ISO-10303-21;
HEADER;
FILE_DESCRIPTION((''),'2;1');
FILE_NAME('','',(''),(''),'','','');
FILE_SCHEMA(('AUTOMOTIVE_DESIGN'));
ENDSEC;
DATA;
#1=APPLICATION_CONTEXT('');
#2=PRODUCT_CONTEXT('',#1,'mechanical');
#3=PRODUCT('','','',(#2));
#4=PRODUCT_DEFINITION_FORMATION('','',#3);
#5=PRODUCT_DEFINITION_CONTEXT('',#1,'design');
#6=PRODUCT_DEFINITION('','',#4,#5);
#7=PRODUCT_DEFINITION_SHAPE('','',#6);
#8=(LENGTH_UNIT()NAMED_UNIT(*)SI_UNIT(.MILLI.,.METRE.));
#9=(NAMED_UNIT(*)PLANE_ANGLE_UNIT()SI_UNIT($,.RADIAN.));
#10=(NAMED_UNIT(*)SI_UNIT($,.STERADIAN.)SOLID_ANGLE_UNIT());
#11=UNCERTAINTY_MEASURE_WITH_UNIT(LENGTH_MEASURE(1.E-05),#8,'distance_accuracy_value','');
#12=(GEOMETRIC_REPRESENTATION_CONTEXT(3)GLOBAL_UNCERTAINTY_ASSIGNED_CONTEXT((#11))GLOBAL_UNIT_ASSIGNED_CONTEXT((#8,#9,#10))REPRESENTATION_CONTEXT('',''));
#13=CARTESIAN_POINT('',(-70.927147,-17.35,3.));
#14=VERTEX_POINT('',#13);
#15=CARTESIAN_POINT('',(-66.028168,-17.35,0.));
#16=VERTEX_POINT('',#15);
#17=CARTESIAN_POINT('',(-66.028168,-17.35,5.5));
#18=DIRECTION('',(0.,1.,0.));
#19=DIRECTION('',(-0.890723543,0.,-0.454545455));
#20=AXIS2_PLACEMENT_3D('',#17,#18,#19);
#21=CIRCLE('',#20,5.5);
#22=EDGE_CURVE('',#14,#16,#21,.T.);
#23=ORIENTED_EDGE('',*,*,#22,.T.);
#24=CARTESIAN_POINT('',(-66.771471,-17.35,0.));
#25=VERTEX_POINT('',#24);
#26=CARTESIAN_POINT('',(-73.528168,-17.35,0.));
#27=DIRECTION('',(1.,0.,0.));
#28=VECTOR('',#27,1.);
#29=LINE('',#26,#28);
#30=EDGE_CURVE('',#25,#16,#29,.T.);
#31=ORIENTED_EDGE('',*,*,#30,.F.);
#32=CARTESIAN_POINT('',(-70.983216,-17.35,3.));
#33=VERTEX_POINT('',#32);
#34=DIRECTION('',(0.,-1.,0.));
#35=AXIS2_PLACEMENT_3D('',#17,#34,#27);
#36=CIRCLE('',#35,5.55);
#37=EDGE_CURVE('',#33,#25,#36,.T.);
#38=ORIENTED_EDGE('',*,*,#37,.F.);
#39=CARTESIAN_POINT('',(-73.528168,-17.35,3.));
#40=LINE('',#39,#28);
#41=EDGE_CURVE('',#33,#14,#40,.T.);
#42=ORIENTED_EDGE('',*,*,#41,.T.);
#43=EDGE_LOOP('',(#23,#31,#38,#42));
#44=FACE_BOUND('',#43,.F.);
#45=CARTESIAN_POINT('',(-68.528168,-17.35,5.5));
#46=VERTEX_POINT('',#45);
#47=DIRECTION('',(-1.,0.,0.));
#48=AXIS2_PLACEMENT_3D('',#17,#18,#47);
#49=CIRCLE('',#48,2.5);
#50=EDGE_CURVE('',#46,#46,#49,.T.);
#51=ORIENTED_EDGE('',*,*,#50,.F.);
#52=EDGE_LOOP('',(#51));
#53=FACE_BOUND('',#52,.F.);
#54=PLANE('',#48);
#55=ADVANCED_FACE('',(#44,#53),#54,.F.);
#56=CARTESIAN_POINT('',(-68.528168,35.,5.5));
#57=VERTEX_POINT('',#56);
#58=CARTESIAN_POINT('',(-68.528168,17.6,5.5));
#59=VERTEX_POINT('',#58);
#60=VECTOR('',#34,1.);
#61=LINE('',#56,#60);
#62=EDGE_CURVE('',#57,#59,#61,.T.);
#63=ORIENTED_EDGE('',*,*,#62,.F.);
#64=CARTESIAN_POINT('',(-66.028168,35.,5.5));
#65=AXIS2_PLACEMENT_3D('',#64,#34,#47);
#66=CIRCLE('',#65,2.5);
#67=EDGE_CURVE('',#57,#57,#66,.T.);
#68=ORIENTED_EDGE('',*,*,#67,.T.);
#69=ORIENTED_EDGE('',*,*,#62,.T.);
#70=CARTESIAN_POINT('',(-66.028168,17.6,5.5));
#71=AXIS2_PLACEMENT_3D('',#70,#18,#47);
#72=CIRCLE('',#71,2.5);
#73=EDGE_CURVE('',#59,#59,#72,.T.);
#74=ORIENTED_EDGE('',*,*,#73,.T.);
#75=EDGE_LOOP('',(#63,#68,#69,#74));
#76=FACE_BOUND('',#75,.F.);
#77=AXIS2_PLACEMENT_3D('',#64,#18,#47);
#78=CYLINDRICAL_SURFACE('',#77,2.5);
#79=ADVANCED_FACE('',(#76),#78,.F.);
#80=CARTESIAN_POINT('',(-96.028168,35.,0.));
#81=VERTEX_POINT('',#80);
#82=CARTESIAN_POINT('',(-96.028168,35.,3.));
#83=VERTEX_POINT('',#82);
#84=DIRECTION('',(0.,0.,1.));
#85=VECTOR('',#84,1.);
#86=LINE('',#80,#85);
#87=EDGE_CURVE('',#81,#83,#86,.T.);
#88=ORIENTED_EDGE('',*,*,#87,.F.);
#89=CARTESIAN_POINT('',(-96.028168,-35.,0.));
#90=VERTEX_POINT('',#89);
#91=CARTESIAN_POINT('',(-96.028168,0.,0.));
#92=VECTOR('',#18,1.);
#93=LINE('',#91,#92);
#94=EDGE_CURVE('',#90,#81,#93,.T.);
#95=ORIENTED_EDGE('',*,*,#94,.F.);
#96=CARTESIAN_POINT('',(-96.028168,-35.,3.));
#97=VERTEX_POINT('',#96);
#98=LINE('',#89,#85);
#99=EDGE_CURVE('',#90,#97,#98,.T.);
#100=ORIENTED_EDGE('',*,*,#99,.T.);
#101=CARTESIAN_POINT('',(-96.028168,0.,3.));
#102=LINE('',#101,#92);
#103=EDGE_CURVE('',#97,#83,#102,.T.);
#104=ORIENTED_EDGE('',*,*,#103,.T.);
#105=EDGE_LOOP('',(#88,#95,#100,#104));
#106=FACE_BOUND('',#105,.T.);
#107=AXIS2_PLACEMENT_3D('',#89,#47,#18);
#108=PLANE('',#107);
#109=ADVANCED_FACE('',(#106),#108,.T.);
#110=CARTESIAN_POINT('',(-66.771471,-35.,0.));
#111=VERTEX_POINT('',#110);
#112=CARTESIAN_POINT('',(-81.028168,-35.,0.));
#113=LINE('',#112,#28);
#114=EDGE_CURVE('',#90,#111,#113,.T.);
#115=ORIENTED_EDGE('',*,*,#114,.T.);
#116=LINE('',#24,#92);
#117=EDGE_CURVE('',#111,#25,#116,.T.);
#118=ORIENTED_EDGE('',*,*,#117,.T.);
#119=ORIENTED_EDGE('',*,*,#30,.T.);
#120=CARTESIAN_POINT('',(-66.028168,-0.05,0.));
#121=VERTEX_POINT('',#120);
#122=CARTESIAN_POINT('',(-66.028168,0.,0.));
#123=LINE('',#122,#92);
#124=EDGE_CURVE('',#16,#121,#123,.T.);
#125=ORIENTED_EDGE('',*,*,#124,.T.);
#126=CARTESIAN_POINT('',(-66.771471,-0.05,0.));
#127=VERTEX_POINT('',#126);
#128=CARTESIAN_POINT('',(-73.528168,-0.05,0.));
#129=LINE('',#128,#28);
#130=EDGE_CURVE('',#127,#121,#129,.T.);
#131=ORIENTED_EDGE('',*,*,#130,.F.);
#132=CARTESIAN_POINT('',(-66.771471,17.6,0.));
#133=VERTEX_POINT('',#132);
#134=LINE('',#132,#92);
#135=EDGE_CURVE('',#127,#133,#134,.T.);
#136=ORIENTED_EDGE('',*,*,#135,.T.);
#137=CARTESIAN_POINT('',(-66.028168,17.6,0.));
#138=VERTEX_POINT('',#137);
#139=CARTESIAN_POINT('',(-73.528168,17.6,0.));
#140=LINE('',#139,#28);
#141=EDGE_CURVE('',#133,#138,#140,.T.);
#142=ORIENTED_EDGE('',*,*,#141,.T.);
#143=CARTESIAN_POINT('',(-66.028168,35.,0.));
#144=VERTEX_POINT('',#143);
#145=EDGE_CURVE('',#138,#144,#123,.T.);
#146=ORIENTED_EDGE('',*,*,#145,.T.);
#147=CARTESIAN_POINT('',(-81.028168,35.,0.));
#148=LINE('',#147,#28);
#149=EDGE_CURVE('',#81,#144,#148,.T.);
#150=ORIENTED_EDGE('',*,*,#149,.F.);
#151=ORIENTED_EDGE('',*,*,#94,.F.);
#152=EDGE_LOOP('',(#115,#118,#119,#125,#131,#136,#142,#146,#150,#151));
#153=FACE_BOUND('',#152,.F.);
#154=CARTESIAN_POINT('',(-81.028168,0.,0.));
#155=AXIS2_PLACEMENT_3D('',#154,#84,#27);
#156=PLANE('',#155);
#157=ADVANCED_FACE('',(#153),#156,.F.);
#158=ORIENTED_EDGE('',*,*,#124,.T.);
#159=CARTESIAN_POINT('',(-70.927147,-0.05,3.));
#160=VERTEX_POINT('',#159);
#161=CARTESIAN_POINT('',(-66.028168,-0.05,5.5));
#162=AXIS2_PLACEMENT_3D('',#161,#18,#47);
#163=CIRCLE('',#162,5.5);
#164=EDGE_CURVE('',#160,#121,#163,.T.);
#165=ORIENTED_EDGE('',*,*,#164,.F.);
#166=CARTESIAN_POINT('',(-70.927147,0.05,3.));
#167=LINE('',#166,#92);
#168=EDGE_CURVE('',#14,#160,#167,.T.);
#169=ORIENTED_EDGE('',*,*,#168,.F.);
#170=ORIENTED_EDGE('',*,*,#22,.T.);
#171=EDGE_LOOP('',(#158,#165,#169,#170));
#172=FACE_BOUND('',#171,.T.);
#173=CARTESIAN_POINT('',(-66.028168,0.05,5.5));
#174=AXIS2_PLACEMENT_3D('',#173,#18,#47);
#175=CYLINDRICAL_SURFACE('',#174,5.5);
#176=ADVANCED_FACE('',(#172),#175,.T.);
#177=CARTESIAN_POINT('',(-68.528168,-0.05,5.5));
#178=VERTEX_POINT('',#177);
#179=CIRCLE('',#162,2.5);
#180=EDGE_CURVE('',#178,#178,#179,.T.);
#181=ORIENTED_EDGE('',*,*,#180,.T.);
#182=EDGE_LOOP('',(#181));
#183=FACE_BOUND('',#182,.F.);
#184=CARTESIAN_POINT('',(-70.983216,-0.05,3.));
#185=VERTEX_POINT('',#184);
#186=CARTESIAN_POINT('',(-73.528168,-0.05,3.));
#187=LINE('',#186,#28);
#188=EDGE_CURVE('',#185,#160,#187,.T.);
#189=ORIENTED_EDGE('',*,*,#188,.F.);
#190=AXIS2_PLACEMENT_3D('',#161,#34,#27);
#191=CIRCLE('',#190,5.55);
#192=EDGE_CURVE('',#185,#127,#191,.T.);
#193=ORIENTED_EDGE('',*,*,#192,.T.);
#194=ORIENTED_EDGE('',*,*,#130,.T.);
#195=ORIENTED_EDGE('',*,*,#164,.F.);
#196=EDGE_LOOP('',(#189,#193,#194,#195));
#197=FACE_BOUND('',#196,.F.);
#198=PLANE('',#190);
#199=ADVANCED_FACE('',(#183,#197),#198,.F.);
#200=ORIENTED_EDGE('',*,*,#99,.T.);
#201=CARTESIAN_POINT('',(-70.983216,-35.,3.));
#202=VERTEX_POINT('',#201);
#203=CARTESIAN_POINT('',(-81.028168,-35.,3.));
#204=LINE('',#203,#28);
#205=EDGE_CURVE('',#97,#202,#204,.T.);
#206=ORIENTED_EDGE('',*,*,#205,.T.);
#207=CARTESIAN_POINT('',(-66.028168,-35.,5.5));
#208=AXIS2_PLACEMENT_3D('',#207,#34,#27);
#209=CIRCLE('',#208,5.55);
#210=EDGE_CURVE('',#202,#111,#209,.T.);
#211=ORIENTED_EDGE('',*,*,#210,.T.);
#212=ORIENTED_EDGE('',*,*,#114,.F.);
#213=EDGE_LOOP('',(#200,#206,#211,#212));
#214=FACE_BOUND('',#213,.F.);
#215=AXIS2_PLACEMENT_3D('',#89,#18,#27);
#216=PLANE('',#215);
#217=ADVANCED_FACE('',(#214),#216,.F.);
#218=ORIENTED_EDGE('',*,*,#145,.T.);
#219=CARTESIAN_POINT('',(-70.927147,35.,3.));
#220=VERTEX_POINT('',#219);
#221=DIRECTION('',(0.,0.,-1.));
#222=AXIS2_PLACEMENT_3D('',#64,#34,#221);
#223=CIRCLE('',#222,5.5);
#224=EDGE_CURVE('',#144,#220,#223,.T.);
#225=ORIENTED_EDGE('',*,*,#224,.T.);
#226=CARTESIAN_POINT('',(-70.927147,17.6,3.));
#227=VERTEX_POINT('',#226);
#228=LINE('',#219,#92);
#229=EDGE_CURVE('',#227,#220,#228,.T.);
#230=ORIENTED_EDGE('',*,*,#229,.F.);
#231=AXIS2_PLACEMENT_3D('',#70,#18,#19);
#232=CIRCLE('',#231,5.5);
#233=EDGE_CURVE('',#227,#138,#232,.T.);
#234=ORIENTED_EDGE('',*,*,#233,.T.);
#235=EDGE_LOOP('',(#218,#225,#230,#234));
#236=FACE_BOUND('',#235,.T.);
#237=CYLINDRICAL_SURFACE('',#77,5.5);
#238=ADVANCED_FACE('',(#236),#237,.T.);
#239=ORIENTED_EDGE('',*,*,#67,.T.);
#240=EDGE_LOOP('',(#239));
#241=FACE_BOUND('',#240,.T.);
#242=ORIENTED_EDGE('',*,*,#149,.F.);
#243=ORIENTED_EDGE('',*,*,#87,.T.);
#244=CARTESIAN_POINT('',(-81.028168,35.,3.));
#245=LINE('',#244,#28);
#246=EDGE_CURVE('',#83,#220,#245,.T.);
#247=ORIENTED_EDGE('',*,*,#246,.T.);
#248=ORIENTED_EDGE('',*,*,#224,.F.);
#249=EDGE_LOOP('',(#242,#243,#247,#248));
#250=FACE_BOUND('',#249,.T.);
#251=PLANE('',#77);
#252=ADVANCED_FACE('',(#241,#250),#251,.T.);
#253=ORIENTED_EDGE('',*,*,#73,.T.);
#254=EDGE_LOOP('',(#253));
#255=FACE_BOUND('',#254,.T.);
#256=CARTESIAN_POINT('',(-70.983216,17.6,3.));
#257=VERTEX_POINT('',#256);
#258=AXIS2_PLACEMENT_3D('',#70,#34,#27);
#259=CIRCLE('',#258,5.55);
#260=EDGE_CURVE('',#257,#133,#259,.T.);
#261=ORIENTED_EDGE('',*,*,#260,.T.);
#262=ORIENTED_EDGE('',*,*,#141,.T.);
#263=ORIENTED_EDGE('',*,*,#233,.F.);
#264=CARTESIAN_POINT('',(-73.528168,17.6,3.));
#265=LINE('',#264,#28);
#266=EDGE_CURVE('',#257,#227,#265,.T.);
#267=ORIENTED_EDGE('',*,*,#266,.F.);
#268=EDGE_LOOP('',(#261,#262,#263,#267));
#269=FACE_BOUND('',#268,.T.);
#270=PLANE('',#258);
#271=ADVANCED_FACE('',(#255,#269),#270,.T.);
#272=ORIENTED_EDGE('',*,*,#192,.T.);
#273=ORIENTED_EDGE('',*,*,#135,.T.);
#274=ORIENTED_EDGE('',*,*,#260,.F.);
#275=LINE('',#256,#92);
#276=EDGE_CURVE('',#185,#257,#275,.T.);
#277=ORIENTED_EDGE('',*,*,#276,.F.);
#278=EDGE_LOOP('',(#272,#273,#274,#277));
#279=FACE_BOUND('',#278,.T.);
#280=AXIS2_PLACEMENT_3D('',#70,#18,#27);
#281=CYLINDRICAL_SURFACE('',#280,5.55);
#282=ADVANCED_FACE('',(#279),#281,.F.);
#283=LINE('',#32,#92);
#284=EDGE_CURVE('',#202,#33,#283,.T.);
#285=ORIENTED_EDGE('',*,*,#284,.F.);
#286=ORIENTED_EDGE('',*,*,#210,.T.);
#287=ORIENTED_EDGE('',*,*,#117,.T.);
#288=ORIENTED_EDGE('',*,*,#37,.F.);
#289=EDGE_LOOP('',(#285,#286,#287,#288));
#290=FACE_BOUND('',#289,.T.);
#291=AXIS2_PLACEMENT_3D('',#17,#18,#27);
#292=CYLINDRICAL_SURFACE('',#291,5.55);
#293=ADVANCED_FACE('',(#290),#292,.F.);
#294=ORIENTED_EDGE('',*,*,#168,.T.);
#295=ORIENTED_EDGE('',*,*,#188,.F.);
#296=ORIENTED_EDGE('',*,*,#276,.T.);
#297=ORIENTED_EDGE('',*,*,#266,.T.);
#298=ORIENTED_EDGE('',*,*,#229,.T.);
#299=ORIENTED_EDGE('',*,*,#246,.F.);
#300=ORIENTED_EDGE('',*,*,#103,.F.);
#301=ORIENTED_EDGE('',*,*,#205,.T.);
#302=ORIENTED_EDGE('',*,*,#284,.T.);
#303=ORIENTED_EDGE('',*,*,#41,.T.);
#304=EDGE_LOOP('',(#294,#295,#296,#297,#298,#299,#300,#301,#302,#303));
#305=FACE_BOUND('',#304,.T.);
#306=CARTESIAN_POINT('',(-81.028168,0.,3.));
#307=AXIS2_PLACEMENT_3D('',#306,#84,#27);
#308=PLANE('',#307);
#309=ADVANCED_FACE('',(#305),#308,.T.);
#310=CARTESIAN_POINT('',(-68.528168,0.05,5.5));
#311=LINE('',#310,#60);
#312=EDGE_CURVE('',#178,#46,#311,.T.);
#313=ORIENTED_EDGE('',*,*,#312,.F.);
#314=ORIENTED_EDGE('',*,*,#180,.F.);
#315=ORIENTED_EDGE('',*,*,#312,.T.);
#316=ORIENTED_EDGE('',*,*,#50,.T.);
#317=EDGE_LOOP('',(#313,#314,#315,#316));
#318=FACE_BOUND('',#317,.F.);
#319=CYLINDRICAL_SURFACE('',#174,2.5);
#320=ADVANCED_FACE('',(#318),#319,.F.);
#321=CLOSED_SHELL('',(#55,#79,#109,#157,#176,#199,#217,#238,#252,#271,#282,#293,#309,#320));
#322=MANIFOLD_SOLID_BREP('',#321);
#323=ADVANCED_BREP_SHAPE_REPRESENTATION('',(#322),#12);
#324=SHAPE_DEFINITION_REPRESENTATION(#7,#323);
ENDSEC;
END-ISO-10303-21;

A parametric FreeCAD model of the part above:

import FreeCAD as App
import Part
import Sketcher

V = App.Vector

doc = App.newDocument("Part")
body = doc.addObject("PartDesign::Body", "Body")

sketch1 = body.newObject("Sketcher::SketchObject", "Sketch")
sketch1.AttachmentSupport = (doc.getObject("XY_Plane"), [""])
sketch1.MapMode = "FlatFace"
sketch1.addGeometry(Part.LineSegment(V(-96, 35, 0), V(-96, -35, 0)), False)
sketch1.addGeometry(Part.LineSegment(V(-96, -35, 0), V(-66, -35, 0)), False)
sketch1.addGeometry(Part.LineSegment(V(-66, -35, 0), V(-66, 35, 0)), False)
sketch1.addGeometry(Part.LineSegment(V(-66, 35, 0), V(-96, 35, 0)), False)
sketch1.addConstraint(Sketcher.Constraint("Coincident", 0, 2, 1, 1))
sketch1.addConstraint(Sketcher.Constraint("Coincident", 1, 2, 2, 1))
sketch1.addConstraint(Sketcher.Constraint("Coincident", 2, 2, 3, 1))
sketch1.addConstraint(Sketcher.Constraint("Coincident", 3, 2, 0, 1))
sketch1.addConstraint(Sketcher.Constraint("Vertical", 0))
sketch1.addConstraint(Sketcher.Constraint("Horizontal", 1))
sketch1.addConstraint(Sketcher.Constraint("Vertical", 2))
sketch1.addConstraint(Sketcher.Constraint("Horizontal", 3))
sketch1.addConstraint(Sketcher.Constraint("DistanceX", 1, 1, 1, 2, 30.0))
sketch1.addConstraint(Sketcher.Constraint("DistanceY", 0, 2, 0, 1, 70.0))
sketch1.addConstraint(Sketcher.Constraint("DistanceY", 0, 2, -1, 1, 35.0))
sketch1.addConstraint(Sketcher.Constraint("DistanceX", 0, 2, -1, 1, 96.028168))
pad1 = body.newObject("PartDesign::Pad", "Pad")
pad1.Profile = sketch1
pad1.Length = 3

sketch2 = body.newObject("Sketcher::SketchObject", "Sketch001")
sketch2.AttachmentSupport = (doc.getObject("XZ_Plane"), [""])
sketch2.MapMode = "FlatFace"
sketch2.AttachmentOffset = App.Placement(V(0, 0, -35), App.Rotation())
sketch2.addGeometry(Part.Circle(V(-66, 5.5, 0), V(0, 0, 1), 5.5), False)
sketch2.addGeometry(Part.Circle(V(-66, 5.5, 0), V(0, 0, 1), 2.5), False)
sketch2.addConstraint(Sketcher.Constraint("Coincident", 1, 3, 0, 3))
sketch2.addConstraint(Sketcher.Constraint("Diameter", 0, 11.0))
sketch2.addConstraint(Sketcher.Constraint("Diameter", 1, 5.0))
sketch2.addConstraint(Sketcher.Constraint("DistanceY", -1, 1, 0, 3, 5.5))
sketch2.addConstraint(Sketcher.Constraint("DistanceX", 0, 3, -1, 1, 66.028168))
pad2 = body.newObject("PartDesign::Pad", "Pad001")
pad2.Profile = sketch2
pad2.Length = 17.4
doc.recompute()

linearpattern = body.newObject("PartDesign::LinearPattern", "LinearPattern")
linearpattern.Originals = [pad2]
linearpattern.Direction = (doc.getObject("Y_Axis"), [""])
linearpattern.Mode = "offset"
linearpattern.Offset = 34.95
linearpattern.Occurrences = 2
linearpattern.Reversed = True
body.Tip = linearpattern

sketch3 = body.newObject("Sketcher::SketchObject", "Sketch002")
sketch3.AttachmentSupport = (doc.getObject("XZ_Plane"), [""])
sketch3.MapMode = "FlatFace"
sketch3.AttachmentOffset = App.Placement(V(0, 0, -17.6), App.Rotation())
sketch3.addGeometry(Part.Circle(V(-66, 6, 0), V(0, 0, 1), 6), False)
sketch3.addConstraint(Sketcher.Constraint("Diameter", 0, 11.1))
sketch3.addConstraint(Sketcher.Constraint("DistanceY", -1, 1, 0, 3, 5.5))
sketch3.addConstraint(Sketcher.Constraint("DistanceX", 0, 3, -1, 1, 66.028168))
pocket1 = body.newObject("PartDesign::Pocket", "Pocket")
pocket1.Profile = sketch3
pocket1.Length = 17.65
pocket1.Reversed = True

sketch4 = body.newObject("Sketcher::SketchObject", "Sketch003")
sketch4.AttachmentSupport = (doc.getObject("XZ_Plane"), [""])
sketch4.MapMode = "FlatFace"
sketch4.AttachmentOffset = App.Placement(V(0, 0, 17.35), App.Rotation())
sketch4.addGeometry(Part.Circle(V(-66, 6, 0), V(0, 0, 1), 6), False)
sketch4.addConstraint(Sketcher.Constraint("Diameter", 0, 11.1))
sketch4.addConstraint(Sketcher.Constraint("DistanceY", -1, 1, 0, 3, 5.5))
sketch4.addConstraint(Sketcher.Constraint("DistanceX", 0, 3, -1, 1, 66.028168))
pocket2 = body.newObject("PartDesign::Pocket", "Pocket001")
pocket2.Profile = sketch4
pocket2.Length = 17.65
pocket2.Reversed = True

doc.recompute()
